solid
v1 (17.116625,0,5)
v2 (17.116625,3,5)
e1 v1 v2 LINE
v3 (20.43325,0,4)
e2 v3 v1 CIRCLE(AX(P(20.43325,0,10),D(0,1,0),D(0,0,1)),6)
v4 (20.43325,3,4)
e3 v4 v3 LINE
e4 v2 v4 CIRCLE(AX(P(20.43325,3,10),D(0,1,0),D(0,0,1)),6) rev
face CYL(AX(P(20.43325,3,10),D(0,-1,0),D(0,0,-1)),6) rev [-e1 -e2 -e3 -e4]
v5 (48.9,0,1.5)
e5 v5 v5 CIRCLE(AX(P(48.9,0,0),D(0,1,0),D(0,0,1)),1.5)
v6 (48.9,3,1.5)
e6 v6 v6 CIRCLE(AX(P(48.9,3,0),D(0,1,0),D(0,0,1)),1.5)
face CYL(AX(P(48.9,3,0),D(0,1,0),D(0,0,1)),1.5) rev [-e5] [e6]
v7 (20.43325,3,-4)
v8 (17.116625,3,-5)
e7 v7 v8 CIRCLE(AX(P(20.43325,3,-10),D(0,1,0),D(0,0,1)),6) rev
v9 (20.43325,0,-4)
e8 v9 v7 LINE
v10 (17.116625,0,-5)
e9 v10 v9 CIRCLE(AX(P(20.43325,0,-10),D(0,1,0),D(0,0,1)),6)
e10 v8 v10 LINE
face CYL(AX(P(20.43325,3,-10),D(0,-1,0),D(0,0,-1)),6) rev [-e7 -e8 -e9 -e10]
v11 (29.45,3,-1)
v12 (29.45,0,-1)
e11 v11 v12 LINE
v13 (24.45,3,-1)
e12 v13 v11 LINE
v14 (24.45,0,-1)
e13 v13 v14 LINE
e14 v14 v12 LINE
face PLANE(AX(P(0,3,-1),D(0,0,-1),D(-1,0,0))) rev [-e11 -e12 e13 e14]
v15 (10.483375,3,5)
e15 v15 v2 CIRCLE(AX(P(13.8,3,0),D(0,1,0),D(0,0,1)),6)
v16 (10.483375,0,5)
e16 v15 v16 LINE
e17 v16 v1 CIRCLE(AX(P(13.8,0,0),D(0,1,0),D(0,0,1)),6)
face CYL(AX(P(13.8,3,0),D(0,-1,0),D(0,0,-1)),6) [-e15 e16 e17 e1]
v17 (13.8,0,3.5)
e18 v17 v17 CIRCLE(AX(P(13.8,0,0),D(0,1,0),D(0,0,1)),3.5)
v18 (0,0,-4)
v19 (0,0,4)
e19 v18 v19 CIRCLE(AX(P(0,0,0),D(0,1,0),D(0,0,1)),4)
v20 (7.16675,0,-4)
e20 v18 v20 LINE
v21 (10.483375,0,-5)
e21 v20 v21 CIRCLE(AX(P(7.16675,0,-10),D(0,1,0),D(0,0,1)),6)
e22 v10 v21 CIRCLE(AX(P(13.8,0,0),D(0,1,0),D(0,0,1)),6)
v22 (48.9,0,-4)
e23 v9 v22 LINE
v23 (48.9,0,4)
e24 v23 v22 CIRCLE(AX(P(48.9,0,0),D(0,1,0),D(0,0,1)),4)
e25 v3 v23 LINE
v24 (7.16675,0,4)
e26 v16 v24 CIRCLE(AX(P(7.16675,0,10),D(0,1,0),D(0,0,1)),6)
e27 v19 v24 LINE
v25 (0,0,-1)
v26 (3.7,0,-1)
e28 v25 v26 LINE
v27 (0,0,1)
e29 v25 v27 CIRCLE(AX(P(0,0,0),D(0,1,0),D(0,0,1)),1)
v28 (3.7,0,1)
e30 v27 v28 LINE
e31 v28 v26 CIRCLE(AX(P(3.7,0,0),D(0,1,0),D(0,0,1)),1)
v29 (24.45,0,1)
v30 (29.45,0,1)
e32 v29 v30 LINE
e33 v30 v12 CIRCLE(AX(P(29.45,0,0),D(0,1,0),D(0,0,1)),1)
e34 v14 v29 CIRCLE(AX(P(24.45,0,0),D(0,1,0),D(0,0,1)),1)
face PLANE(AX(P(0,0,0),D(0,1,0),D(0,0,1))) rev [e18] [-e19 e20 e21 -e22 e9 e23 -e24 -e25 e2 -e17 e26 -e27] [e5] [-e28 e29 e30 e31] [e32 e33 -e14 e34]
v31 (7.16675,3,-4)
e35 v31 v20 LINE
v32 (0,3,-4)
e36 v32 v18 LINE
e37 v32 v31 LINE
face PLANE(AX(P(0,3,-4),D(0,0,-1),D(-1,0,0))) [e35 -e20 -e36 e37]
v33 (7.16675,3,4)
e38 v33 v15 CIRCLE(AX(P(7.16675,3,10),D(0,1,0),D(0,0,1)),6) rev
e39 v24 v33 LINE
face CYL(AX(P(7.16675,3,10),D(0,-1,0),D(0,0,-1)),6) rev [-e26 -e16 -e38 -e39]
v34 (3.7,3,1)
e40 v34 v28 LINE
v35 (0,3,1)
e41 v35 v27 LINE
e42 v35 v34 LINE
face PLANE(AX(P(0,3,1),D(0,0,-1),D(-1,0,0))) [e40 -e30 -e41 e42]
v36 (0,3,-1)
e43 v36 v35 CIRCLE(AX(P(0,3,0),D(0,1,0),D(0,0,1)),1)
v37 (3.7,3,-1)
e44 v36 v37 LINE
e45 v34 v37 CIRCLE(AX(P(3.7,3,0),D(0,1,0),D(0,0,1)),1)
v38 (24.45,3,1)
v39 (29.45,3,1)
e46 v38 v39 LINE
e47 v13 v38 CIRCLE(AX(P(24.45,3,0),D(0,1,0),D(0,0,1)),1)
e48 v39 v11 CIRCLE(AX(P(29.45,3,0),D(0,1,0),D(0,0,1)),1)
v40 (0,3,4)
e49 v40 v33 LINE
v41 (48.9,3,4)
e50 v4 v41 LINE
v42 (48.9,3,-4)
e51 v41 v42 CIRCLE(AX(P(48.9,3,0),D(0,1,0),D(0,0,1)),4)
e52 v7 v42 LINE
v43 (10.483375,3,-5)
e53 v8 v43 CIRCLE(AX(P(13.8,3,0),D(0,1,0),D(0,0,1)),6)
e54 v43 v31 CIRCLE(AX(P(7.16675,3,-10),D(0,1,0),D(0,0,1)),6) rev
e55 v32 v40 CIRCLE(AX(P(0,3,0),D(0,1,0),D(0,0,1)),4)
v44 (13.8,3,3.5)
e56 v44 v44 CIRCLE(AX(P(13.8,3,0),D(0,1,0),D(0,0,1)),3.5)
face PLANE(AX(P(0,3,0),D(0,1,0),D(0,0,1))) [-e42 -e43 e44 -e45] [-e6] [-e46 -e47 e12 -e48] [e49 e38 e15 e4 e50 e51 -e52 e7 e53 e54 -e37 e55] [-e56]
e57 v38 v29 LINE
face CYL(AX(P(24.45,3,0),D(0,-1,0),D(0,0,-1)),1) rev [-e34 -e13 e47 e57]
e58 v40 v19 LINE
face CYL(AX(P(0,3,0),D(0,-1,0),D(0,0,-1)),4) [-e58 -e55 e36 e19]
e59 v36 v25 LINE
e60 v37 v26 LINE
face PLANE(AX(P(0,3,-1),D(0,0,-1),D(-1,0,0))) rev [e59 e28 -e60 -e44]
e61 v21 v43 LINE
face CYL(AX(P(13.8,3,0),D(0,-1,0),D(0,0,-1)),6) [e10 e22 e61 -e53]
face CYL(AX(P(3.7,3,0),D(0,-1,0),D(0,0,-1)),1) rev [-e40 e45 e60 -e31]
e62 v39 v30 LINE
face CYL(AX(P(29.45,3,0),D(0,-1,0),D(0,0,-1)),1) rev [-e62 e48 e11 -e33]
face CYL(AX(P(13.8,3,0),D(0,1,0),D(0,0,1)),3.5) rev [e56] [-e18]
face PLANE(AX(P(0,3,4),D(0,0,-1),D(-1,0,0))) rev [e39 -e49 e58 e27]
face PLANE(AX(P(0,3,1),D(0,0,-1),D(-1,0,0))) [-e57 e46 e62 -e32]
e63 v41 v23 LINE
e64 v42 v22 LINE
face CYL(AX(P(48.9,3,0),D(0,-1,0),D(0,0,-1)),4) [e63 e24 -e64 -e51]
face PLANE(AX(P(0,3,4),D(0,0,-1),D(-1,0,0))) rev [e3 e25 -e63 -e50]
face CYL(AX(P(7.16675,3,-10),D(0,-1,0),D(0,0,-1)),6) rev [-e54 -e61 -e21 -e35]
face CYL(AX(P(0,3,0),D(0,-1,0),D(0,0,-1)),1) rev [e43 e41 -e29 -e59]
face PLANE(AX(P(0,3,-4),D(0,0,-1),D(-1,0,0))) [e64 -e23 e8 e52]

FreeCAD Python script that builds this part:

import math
import FreeCAD as App
import Part
import Sketcher

V = App.Vector
Q = App.Units.Quantity


def edges_at(feature, points):
    """Names of the edges that pass closest to the given points."""
    edges = feature.Shape.Edges
    near = lambda p: min(range(len(edges)), key=lambda i: edges[i].distToShape(Part.Vertex(*p))[0])
    return sorted({f"Edge{near(p) + 1}" for p in points})

doc = App.newDocument("Part")
params = doc.addObject("Spreadsheet::Sheet", "Params")
for row, (alias, value) in enumerate([
    ("sketch1_radius", "4 mm"),
    ("sketch1_radius2", "6 mm"),
    ("sketch1_radius3", "1 mm"),
    ("sketch1_width", "5 mm"),
    ("sketch1_width2", "3.7 mm"),
    ("pad1_length", "3 mm"),
    ("sketch2_diameter", "3 mm"),
    ("hole_diameter", "3 mm"),
    ("sketch3_diameter", "7 mm"),
    ("hole2_diameter", "7 mm"),
    ("fillet_radius", "6 mm"),
], start=1):
    params.set(f"A{row}", alias)
    params.set(f"B{row}", "=" + value)
    params.setAlias(f"B{row}", alias)

body = doc.addObject("PartDesign::Body", "Body")

sketch1 = body.newObject("Sketcher::SketchObject", "Sketch")
sketch1.AttachmentSupport = (doc.getObject("XZ_Plane"), [""])
sketch1.MapMode = "FlatFace"
sketch1.addGeometry([
    Part.LineSegment(V(18.3, 4, 0), V(48.9, 4, 0)),
    Part.ArcOfCircle(Part.Circle(V(48.9, 0, 0), V(0, 0, 1), 4), math.radians(-90), math.radians(90)),
    Part.LineSegment(V(48.9, -4, 0), V(18.3, -4, 0)),
    Part.ArcOfCircle(Part.Circle(V(13.8, 0, 0), V(0, 0, 1), 6), math.radians(-138), math.radians(-42)),
    Part.LineSegment(V(9.3, -4, 0), V(0, -4, 0)),
    Part.ArcOfCircle(Part.Circle(V(0, 0, 0), V(0, 0, 1), 4), math.radians(90), math.radians(270)),
    Part.LineSegment(V(0, 4, 0), V(9.3, 4, 0)),
    Part.ArcOfCircle(Part.Circle(V(13.8, 0, 0), V(0, 0, 1), 6), math.radians(42), math.radians(138)),
    Part.ArcOfCircle(Part.Circle(V(29.4, 0, 0), V(0, 0, 1), 1), math.radians(-90), math.radians(90)),
    Part.LineSegment(V(29.4, 1, 0), V(24.4, 1, 0)),
    Part.ArcOfCircle(Part.Circle(V(24.4, 0, 0), V(0, 0, 1), 1), math.radians(90), math.radians(270)),
    Part.LineSegment(V(24.4, -1, 0), V(29.4, -1, 0)),
    Part.LineSegment(V(3.7, 1, 0), V(0, 1, 0)),
    Part.ArcOfCircle(Part.Circle(V(0, 0, 0), V(0, 0, 1), 1), math.radians(90), math.radians(270)),
    Part.LineSegment(V(0, -1, 0), V(3.7, -1, 0)),
    Part.ArcOfCircle(Part.Circle(V(3.7, 0, 0), V(0, 0, 1), 1), math.radians(-90), math.radians(90)),
], False)
sketch1.addConstraint([
    Sketcher.Constraint("Tangent", 0, 2, 1, 2),
    Sketcher.Constraint("Tangent", 1, 1, 2, 1),
    Sketcher.Constraint("Coincident", 2, 2, 3, 2),
    Sketcher.Constraint("Coincident", 3, 1, 4, 1),
    Sketcher.Constraint("Tangent", 4, 2, 5, 2),
    Sketcher.Constraint("Tangent", 5, 1, 6, 1),
    Sketcher.Constraint("Coincident", 6, 2, 7, 2),
    Sketcher.Constraint("Coincident", 7, 1, 0, 1),
    Sketcher.Constraint("Tangent", 8, 2, 9, 1),
    Sketcher.Constraint("Tangent", 9, 2, 10, 1),
    Sketcher.Constraint("Tangent", 10, 2, 11, 1),
    Sketcher.Constraint("Tangent", 11, 2, 8, 1),
    Sketcher.Constraint("Tangent", 12, 2, 13, 1),
    Sketcher.Constraint("Tangent", 13, 2, 14, 1),
    Sketcher.Constraint("Tangent", 14, 2, 15, 1),
    Sketcher.Constraint("Tangent", 15, 2, 12, 1),
    Sketcher.Constraint("Horizontal", 0),
    Sketcher.Constraint("Horizontal", 2),
    Sketcher.Constraint("Horizontal", 4),
    Sketcher.Constraint("Horizontal", 6),
    Sketcher.Constraint("Horizontal", 9),
    Sketcher.Constraint("Horizontal", 11),
    Sketcher.Constraint("Horizontal", 12),
    Sketcher.Constraint("Horizontal", 14),
    Sketcher.Constraint("Coincident", 5, 3, -1, 1),
    Sketcher.Constraint("Coincident", 13, 3, -1, 1),
    Sketcher.Constraint("Coincident", 7, 3, 3, 3),
    Sketcher.Constraint("Equal", 1, 5),
    Sketcher.Constraint("Equal", 3, 7),
    Sketcher.Constraint("Equal", 10, 13),
    Sketcher.Constraint("Symmetric", 2, 2, 7, 1, -1),
    Sketcher.Constraint("PointOnObject", 8, 3, -1),
    Sketcher.Constraint("Radius", 1, Q("4 mm")),
    Sketcher.Constraint("Radius", 3, Q("6 mm")),
    Sketcher.Constraint("Radius", 8, Q("1 mm")),
    Sketcher.Constraint("DistanceX", 9, 2, 9, 1, Q("5 mm")),
    Sketcher.Constraint("DistanceX", 12, 2, 12, 1, Q("3.7 mm")),
    Sketcher.Constraint("DistanceX", -1, 1, 1, 3, Q("48.9 mm")),
    Sketcher.Constraint("DistanceX", -1, 1, 3, 3, Q("13.8 mm")),
    Sketcher.Constraint("DistanceX", -1, 1, 8, 3, Q("29.45 mm")),
])
sketch1.setExpression("Constraints[32]", "Params.sketch1_radius")
sketch1.setExpression("Constraints[33]", "Params.sketch1_radius2")
sketch1.setExpression("Constraints[34]", "Params.sketch1_radius3")
sketch1.setExpression("Constraints[35]", "Params.sketch1_width")
sketch1.setExpression("Constraints[36]", "Params.sketch1_width2")
pad1 = body.newObject("PartDesign::Pad", "Pad")
pad1.Profile = sketch1
pad1.setExpression("Length", "Params.pad1_length")
pad1.Reversed = True

sketch2 = body.newObject("Sketcher::SketchObject", "Sketch001")
sketch2.AttachmentSupport = (doc.getObject("XZ_Plane"), [""])
sketch2.MapMode = "FlatFace"
sketch2.AttachmentOffset = App.Placement(V(0, 0, -3), App.Rotation())
sketch2.addGeometry(Part.Circle(V(48.9, 0, 0), V(0, 0, 1), 1.5), False)
sketch2.addConstraint([
    Sketcher.Constraint("PointOnObject", 0, 3, -1),
    Sketcher.Constraint("Diameter", 0, Q("3 mm")),
    Sketcher.Constraint("DistanceX", -1, 1, 0, 3, Q("48.9 mm")),
])
sketch2.setExpression("Constraints[1]", "Params.sketch2_diameter")
doc.recompute()
hole = body.newObject("PartDesign::Hole", "Hole")
hole.Profile = sketch2
hole.ThreadType = "None"
hole.setExpression("Diameter", "Params.hole_diameter")
hole.DepthType = "ThroughAll"
hole.Reversed = True

sketch3 = body.newObject("Sketcher::SketchObject", "Sketch002")
sketch3.AttachmentSupport = (doc.getObject("XZ_Plane"), [""])
sketch3.MapMode = "FlatFace"
sketch3.AttachmentOffset = App.Placement(V(0, 0, -3), App.Rotation())
sketch3.addGeometry(Part.Circle(V(13.8, 0, 0), V(0, 0, 1), 3.5), False)
sketch3.addConstraint([
    Sketcher.Constraint("PointOnObject", 0, 3, -1),
    Sketcher.Constraint("Diameter", 0, Q("7 mm")),
    Sketcher.Constraint("DistanceX", -1, 1, 0, 3, Q("13.8 mm")),
])
sketch3.setExpression("Constraints[1]", "Params.sketch3_diameter")
doc.recompute()
hole2 = body.newObject("PartDesign::Hole", "Hole001")
hole2.Profile = sketch3
hole2.ThreadType = "None"
hole2.setExpression("Diameter", "Params.hole2_diameter")
hole2.DepthType = "ThroughAll"
hole2.Reversed = True
doc.recompute()

fillet = body.newObject("PartDesign::Fillet", "Fillet")
fillet.Base = (hole2, edges_at(hole2, [
    (9.328, 1.5, -4),
    (18.272, 1.5, -4),
    (18.272, 1.5, 4),
    (9.328, 1.5, 4),
]))
fillet.setExpression("Radius", "Params.fillet_radius")

doc.recompute()
